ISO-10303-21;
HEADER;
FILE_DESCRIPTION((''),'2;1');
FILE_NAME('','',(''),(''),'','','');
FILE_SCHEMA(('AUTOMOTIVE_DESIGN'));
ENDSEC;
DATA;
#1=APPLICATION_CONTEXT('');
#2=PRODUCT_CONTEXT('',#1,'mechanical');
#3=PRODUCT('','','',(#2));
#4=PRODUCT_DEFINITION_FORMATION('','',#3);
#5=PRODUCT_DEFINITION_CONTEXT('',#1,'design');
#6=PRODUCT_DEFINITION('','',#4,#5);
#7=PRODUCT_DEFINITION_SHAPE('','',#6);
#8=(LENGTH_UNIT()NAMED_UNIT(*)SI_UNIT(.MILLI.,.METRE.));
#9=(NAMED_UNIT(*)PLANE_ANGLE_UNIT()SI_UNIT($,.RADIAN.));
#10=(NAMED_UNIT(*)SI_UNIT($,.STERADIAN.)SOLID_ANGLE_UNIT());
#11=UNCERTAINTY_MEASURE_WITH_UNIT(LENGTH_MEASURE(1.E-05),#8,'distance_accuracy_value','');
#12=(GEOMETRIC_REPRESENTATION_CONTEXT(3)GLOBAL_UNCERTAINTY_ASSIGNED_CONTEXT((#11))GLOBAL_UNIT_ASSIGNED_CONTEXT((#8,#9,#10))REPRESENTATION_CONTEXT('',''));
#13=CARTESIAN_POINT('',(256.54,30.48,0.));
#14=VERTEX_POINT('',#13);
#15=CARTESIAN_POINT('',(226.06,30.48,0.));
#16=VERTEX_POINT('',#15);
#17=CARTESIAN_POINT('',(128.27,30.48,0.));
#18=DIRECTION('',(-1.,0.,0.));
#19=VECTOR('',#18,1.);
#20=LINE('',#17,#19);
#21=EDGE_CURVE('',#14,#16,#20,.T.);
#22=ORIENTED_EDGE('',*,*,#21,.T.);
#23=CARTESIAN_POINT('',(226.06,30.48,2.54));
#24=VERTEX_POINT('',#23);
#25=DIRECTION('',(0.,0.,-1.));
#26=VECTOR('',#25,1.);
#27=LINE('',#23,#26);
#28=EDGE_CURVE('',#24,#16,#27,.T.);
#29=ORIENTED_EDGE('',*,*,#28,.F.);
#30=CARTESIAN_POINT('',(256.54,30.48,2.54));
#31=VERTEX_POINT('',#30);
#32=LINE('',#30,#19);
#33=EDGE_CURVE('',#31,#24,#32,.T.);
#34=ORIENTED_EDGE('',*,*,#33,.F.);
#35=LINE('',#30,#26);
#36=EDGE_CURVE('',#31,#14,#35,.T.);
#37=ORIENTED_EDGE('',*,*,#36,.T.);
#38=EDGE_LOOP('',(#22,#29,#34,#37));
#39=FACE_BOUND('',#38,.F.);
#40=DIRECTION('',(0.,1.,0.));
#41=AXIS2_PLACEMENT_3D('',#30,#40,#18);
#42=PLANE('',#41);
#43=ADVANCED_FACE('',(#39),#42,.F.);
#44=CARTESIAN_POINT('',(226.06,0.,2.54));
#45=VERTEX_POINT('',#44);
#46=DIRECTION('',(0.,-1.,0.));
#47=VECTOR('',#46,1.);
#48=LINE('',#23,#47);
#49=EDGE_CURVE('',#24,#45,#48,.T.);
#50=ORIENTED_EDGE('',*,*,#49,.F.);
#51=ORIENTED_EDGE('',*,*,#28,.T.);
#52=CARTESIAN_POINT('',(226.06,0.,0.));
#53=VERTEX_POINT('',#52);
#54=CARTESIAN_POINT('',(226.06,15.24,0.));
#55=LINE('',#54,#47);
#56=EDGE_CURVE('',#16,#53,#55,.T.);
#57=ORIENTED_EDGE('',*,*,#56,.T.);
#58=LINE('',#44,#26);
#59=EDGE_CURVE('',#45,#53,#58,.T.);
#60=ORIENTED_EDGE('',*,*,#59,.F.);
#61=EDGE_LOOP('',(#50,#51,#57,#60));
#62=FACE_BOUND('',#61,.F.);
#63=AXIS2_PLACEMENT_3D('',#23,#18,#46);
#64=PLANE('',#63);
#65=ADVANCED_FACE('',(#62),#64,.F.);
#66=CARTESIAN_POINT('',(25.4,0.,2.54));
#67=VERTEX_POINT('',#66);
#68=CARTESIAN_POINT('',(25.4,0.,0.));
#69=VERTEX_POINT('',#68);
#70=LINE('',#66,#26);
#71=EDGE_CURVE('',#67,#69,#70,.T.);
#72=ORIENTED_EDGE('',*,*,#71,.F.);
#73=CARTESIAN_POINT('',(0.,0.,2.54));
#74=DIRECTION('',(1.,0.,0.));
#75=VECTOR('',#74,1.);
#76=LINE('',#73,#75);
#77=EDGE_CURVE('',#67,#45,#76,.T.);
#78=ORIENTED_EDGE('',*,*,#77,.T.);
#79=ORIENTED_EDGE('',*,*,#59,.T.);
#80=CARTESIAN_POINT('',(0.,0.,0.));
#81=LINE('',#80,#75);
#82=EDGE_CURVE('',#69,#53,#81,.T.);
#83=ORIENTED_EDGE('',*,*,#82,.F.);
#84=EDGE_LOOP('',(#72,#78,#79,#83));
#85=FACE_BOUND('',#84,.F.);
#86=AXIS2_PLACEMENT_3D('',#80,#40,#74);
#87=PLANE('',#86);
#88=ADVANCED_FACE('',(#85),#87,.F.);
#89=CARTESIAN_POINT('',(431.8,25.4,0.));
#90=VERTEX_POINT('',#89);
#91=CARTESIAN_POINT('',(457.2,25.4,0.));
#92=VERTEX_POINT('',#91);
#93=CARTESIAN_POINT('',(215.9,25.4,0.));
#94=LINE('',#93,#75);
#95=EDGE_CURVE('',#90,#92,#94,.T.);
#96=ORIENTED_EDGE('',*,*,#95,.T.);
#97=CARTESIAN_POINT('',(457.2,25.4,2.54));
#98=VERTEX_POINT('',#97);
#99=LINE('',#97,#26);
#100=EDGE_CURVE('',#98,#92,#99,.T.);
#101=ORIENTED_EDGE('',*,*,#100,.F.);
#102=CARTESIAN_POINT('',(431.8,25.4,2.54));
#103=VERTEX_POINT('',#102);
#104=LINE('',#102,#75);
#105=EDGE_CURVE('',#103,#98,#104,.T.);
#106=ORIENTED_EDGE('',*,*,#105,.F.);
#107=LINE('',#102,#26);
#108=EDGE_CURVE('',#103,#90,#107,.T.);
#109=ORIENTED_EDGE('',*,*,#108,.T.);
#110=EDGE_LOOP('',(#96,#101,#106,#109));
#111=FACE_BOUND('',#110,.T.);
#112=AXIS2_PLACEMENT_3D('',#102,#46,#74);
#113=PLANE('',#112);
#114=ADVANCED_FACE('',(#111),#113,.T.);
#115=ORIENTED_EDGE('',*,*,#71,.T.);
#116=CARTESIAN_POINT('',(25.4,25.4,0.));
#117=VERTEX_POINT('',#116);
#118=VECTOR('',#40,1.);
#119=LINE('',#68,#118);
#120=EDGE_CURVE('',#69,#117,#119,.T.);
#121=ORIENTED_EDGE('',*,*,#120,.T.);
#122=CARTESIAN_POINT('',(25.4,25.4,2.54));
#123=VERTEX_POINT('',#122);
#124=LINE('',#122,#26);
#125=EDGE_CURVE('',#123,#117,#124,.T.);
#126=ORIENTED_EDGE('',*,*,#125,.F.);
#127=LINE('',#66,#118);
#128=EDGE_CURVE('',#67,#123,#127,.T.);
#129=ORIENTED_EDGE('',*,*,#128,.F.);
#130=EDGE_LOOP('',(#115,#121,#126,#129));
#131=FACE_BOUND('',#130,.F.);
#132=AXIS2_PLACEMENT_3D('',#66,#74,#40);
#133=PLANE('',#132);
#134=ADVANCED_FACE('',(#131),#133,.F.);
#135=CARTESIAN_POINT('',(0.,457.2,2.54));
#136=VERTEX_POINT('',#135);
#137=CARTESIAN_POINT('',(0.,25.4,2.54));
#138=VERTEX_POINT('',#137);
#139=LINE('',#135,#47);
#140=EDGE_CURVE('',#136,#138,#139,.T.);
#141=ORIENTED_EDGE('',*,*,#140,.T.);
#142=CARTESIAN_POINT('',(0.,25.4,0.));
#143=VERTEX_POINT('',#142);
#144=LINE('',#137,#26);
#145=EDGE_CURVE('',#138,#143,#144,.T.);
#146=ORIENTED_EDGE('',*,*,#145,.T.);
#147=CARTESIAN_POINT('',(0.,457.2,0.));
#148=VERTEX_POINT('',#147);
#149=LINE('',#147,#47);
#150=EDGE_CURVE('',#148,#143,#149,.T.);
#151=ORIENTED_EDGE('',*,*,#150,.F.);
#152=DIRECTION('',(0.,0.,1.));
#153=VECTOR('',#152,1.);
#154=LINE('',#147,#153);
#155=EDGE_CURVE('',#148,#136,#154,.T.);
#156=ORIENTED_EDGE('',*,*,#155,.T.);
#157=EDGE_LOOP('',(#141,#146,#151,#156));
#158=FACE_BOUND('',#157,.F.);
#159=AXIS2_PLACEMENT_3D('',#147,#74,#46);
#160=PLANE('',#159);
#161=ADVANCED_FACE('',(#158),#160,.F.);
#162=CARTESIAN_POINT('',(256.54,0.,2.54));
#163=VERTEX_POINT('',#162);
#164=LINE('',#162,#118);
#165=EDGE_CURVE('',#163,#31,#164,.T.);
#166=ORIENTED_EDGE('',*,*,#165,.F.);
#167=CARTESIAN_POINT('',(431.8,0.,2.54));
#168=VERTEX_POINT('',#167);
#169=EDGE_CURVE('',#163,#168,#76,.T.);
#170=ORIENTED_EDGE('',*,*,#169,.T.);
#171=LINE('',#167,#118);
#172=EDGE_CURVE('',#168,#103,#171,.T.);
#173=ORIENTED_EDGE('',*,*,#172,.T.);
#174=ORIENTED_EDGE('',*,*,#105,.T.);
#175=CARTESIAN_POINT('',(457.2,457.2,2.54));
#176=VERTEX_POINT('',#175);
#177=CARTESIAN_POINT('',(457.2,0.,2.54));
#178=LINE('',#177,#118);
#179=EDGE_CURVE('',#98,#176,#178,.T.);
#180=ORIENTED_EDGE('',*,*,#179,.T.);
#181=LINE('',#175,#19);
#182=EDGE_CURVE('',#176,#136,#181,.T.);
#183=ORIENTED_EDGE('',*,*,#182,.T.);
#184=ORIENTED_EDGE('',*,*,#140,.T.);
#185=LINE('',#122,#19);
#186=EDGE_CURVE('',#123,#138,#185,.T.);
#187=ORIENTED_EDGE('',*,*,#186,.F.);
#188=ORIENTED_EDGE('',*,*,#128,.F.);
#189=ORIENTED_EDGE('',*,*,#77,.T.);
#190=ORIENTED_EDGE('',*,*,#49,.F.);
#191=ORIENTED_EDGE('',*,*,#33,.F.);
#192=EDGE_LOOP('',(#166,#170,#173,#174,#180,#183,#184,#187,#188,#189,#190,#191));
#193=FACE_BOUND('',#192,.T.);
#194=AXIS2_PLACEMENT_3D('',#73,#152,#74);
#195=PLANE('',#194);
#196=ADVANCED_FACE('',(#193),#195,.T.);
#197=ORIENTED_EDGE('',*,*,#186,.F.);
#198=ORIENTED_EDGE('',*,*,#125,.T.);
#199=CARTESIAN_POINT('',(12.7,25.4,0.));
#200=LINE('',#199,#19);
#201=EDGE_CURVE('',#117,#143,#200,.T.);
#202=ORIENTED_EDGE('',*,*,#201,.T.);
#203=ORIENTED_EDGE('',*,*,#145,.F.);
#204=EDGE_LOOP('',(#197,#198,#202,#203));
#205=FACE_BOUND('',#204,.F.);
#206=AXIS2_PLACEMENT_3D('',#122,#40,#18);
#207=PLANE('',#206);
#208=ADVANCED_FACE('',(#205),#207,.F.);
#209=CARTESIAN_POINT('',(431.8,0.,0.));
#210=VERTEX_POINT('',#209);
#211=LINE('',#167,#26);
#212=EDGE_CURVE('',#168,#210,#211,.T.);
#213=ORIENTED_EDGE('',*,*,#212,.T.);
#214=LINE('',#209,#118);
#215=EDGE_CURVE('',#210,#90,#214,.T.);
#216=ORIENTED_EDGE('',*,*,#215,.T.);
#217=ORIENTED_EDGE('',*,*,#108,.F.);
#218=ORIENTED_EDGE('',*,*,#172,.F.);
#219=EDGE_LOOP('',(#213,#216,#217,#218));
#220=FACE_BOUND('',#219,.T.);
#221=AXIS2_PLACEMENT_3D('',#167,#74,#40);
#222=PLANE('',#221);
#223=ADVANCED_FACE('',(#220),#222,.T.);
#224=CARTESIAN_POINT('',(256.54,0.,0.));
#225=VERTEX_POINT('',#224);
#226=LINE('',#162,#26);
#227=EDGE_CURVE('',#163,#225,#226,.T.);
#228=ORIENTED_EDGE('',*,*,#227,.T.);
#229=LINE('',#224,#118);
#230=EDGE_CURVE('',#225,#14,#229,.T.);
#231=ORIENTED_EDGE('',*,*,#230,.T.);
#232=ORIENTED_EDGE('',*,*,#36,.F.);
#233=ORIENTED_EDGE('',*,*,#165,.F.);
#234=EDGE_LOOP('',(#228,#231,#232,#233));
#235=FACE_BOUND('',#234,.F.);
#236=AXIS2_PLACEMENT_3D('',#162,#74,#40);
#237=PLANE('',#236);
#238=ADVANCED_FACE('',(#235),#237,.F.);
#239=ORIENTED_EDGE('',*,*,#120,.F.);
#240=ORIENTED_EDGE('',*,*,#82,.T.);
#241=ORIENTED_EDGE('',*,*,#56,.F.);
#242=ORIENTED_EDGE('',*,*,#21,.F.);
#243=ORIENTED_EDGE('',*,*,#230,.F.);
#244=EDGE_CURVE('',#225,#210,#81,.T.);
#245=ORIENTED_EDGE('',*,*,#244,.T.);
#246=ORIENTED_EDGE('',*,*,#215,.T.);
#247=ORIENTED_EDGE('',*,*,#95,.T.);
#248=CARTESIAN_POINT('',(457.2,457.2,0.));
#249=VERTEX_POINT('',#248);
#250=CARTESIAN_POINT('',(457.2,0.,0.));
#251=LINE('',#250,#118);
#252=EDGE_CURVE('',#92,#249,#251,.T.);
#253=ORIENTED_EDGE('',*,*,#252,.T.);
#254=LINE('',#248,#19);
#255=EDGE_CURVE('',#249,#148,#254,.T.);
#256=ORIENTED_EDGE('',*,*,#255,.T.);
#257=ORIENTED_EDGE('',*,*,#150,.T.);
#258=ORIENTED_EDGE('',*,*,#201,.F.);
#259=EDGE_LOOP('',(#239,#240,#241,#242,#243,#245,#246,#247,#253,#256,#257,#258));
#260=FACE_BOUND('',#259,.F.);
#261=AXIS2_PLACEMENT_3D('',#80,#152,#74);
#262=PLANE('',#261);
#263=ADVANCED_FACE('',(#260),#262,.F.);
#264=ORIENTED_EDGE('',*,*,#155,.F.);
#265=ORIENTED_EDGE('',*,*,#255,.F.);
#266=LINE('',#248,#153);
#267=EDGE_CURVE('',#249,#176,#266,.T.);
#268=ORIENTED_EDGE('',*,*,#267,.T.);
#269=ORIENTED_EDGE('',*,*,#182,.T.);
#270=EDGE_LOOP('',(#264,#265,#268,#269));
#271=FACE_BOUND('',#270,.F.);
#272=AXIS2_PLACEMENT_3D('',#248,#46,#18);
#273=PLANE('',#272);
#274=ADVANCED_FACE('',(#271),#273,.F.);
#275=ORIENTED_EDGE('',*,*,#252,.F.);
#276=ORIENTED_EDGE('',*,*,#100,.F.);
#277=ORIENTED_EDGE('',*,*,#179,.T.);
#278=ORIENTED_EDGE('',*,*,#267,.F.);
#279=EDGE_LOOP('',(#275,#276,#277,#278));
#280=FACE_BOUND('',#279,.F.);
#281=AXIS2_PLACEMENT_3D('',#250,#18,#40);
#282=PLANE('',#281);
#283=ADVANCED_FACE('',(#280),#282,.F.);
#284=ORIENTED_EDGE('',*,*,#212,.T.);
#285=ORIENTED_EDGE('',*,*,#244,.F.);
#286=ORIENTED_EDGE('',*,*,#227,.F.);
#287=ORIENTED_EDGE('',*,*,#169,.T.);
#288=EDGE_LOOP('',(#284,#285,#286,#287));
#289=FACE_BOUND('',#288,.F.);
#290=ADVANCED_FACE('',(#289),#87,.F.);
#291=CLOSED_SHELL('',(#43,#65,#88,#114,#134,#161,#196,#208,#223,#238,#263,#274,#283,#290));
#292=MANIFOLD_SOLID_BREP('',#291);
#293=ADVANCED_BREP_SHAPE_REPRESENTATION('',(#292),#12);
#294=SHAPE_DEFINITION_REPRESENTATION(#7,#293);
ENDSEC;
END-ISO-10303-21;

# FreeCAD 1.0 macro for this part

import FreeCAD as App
import Part
import Sketcher
from FreeCAD import Vector
Q = App.Units.Quantity

doc = App.newDocument("Part")
body = doc.addObject("PartDesign::Body", "Body")

# Sketch on XY plane
sketch1 = body.newObject("Sketcher::SketchObject", "Sketch")
sketch1.AttachmentSupport = (doc.getObject("XY_Plane"), [""])
sketch1.MapMode = "FlatFace"
sketch1.addGeometry([
    Part.LineSegment(Vector(0, 457.2, 0), Vector(0, 0, 0)),
    Part.LineSegment(Vector(0, 0, 0), Vector(457.2, 0, 0)),
    Part.LineSegment(Vector(457.2, 0, 0), Vector(457.2, 457.2, 0)),
    Part.LineSegment(Vector(457.2, 457.2, 0), Vector(0, 457.2, 0)),
], False)
sketch1.addConstraint([
    Sketcher.Constraint("Coincident", 0, 2, 1, 1),
    Sketcher.Constraint("Coincident", 1, 2, 2, 1),
    Sketcher.Constraint("Coincident", 2, 2, 3, 1),
    Sketcher.Constraint("Coincident", 3, 2, 0, 1),
    Sketcher.Constraint("Vertical", 0),
    Sketcher.Constraint("Horizontal", 1),
    Sketcher.Constraint("Vertical", 2),
    Sketcher.Constraint("Horizontal", 3),
    Sketcher.Constraint("Coincident", 0, 2, -1, 1),
    Sketcher.Constraint("Equal", 3, 0),
    Sketcher.Constraint("DistanceX", 1, 1, 1, 2, Q("18 in")),
])
pad1 = body.newObject("PartDesign::Pad", "Pad")
pad1.Profile = sketch1
pad1.Length = Q("0.1 in")

# Sketch on XY plane
sketch2 = body.newObject("Sketcher::SketchObject", "Sketch001")
sketch2.AttachmentSupport = (doc.getObject("XY_Plane"), [""])
sketch2.MapMode = "FlatFace"
sketch2.AttachmentOffset = App.Placement(Vector(0, 0, 0.1 * 25.4), App.Rotation())
sketch2.addGeometry([
    Part.LineSegment(Vector(0, 25.4, 0), Vector(0, 0, 0)),  # 0
    Part.LineSegment(Vector(0, 0, 0), Vector(25.4, 0, 0)),  # 1
    Part.LineSegment(Vector(25.4, 0, 0), Vector(25.4, 25.4, 0)),  # 2
    Part.LineSegment(Vector(25.4, 25.4, 0), Vector(0, 25.4, 0)),  # 3
    Part.LineSegment(Vector(431.8, 25.4, 0), Vector(431.8, 0, 0)),  # 4
    Part.LineSegment(Vector(431.8, 0, 0), Vector(457.2, 0, 0)),  # 5
    Part.LineSegment(Vector(457.2, 0, 0), Vector(457.2, 25.4, 0)),  # 6
    Part.LineSegment(Vector(457.2, 25.4, 0), Vector(431.8, 25.4, 0)),  # 7
], False)
sketch2.addConstraint([
    Sketcher.Constraint("Coincident", 0, 2, 1, 1),
    Sketcher.Constraint("Coincident", 1, 2, 2, 1),
    Sketcher.Constraint("Coincident", 2, 2, 3, 1),
    Sketcher.Constraint("Coincident", 3, 2, 0, 1),
    Sketcher.Constraint("Coincident", 4, 2, 5, 1),
    Sketcher.Constraint("Coincident", 5, 2, 6, 1),
    Sketcher.Constraint("Coincident", 6, 2, 7, 1),
    Sketcher.Constraint("Coincident", 7, 2, 4, 1),
    Sketcher.Constraint("Vertical", 0),
    Sketcher.Constraint("Horizontal", 1),
    Sketcher.Constraint("Vertical", 2),
    Sketcher.Constraint("Horizontal", 3),
    Sketcher.Constraint("Vertical", 4),
    Sketcher.Constraint("Horizontal", 5),
    Sketcher.Constraint("Vertical", 6),
    Sketcher.Constraint("Horizontal", 7),
    Sketcher.Constraint("Coincident", 0, 2, -1, 1),
    Sketcher.Constraint("PointOnObject", 4, 2, -1),
    Sketcher.Constraint("Horizontal", 3, 2, 6, 2),
    Sketcher.Constraint("Equal", 3, 5),
    Sketcher.Constraint("Equal", 7, 0),
    Sketcher.Constraint("DistanceX", 1, 1, 1, 2, Q("1 in")),
    Sketcher.Constraint("DistanceX", -1, 1, 4, 2, Q("17 in")),
])
pocket1 = body.newObject("PartDesign::Pocket", "Pocket")
pocket1.Profile = sketch2
pocket1.Length = Q("1 in")

# Sketch on XY plane
sketch3 = body.newObject("Sketcher::SketchObject", "Sketch002")
sketch3.AttachmentSupport = (doc.getObject("XY_Plane"), [""])
sketch3.MapMode = "FlatFace"
sketch3.AttachmentOffset = App.Placement(Vector(0, 0, 0.1 * 25.4), App.Rotation())
sketch3.addGeometry([
    Part.LineSegment(Vector(226.06, 30.48, 0), Vector(226.06, 0, 0)),
    Part.LineSegment(Vector(226.06, 0, 0), Vector(256.54, 0, 0)),
    Part.LineSegment(Vector(256.54, 0, 0), Vector(256.54, 30.48, 0)),
    Part.LineSegment(Vector(256.54, 30.48, 0), Vector(226.06, 30.48, 0)),
], False)
sketch3.addConstraint([
    Sketcher.Constraint("Coincident", 0, 2, 1, 1),
    Sketcher.Constraint("Coincident", 1, 2, 2, 1),
    Sketcher.Constraint("Coincident", 2, 2, 3, 1),
    Sketcher.Constraint("Coincident", 3, 2, 0, 1),
    Sketcher.Constraint("Vertical", 0),
    Sketcher.Constraint("Horizontal", 1),
    Sketcher.Constraint("Vertical", 2),
    Sketcher.Constraint("Horizontal", 3),
    Sketcher.Constraint("PointOnObject", 0, 2, -1),
    Sketcher.Constraint("Equal", 3, 0),
    Sketcher.Constraint("DistanceX", 1, 1, 1, 2, Q("1.2 in")),
    Sketcher.Constraint("DistanceX", -1, 1, 0, 2, Q("8.9 in")),
])
pocket2 = body.newObject("PartDesign::Pocket", "Pocket001")
pocket2.Profile = sketch3
pocket2.Length = Q("1 in")

doc.recompute()
